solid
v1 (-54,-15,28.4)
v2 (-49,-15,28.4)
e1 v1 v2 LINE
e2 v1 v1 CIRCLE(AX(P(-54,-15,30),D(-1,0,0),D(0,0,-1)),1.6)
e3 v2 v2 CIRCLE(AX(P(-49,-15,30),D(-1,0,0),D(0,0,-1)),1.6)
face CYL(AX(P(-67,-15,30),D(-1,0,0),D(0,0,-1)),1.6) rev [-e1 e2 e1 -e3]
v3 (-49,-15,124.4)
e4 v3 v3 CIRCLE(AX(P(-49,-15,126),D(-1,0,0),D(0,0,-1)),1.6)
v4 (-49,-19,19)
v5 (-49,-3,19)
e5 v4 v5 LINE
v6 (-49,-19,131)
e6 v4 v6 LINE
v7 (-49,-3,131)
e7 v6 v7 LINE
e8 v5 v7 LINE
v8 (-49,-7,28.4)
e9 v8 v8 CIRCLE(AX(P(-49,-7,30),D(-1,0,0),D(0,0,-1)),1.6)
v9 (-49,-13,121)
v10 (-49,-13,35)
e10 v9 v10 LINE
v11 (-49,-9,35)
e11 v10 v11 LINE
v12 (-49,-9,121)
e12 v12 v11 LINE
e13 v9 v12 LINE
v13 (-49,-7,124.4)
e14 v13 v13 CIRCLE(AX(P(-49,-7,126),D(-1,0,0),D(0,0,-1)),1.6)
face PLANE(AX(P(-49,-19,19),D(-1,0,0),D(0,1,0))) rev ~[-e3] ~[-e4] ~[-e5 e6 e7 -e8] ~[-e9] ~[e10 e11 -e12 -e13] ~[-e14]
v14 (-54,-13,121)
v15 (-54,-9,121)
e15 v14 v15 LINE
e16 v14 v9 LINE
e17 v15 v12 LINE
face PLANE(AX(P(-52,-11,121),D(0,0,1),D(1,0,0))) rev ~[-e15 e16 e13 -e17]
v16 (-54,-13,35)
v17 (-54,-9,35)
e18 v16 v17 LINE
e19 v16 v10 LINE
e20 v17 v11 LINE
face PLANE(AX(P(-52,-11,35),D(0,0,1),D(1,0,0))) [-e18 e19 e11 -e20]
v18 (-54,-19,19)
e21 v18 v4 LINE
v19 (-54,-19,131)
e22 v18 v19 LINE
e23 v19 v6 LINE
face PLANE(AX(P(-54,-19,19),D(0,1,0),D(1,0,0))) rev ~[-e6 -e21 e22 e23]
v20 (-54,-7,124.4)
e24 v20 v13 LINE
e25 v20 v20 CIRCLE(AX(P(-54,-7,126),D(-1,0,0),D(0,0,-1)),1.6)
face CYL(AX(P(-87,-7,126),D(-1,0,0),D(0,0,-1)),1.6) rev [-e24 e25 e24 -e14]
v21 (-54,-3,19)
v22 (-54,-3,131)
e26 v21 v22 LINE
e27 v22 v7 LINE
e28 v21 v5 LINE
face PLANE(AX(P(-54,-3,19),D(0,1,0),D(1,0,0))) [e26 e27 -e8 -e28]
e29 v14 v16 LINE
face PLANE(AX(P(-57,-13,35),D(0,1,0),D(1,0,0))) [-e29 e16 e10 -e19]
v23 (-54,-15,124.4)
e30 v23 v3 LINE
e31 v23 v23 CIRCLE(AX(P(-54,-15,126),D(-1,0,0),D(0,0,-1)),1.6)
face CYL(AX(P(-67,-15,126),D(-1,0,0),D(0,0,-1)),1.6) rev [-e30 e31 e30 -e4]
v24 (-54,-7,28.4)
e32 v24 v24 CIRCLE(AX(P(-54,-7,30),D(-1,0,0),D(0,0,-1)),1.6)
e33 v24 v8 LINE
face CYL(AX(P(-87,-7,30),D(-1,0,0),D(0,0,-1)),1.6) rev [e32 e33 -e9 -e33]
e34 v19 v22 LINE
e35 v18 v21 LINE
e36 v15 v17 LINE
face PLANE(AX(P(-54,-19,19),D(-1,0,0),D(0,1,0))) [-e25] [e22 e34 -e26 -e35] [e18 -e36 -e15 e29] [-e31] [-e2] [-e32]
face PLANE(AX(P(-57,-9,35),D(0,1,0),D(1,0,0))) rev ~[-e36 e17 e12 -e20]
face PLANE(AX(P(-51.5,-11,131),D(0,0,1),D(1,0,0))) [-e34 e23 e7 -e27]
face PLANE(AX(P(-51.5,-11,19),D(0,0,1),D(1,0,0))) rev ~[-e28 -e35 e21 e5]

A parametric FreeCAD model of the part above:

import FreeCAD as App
import Part
import Sketcher
from FreeCAD import Vector
Q = App.Units.Quantity

doc = App.newDocument("Part")
body = doc.addObject("PartDesign::Body", "Body")

# Sketch on XY plane
sketch1 = body.newObject("Sketcher::SketchObject", "Sketch")
sketch1.AttachmentSupport = (doc.getObject("XY_Plane"), [""])
sketch1.MapMode = "FlatFace"
sketch1.addGeometry(Part.Circle(Vector(0, 0, 0), Vector(0, 0, 1), 1.6), False)
sketch1.addConstraint([
    Sketcher.Constraint("Coincident", 0, 3, -1, 1),
    Sketcher.Constraint("Diameter", 0, Q("3.2 mm")),
])
pad1 = body.newObject("PartDesign::Pad", "Pad")
pad1.Profile = sketch1
pad1.Length = 40
body2 = doc.addObject("PartDesign::Body", "Body001")
doc.recompute()

body.Placement = App.Placement(Vector(0, 0, 0), App.Rotation(Vector(0, 1, 0), 90))
boolean = body2.newObject("PartDesign::Boolean", "Boolean")
boolean.Type = "Fuse"
boolean.addObjects([body])
body3 = doc.addObject("PartDesign::Body", "Body002")
doc.recompute()

body2.Placement = App.Placement(Vector(-67, 7, 126), App.Rotation(Vector(0, 0, 1), 0))
boolean2 = body3.newObject("PartDesign::Boolean", "Boolean001")
boolean2.Type = "Fuse"
boolean2.addObjects([body2])
body4 = doc.addObject("PartDesign::Body", "Body003")

# Sketch on XY plane
sketch2 = body4.newObject("Sketcher::SketchObject", "Sketch001")
sketch2.AttachmentSupport = (doc.getObject("XY_Plane003"), [""])
sketch2.MapMode = "FlatFace"
sketch2.addGeometry(Part.Circle(Vector(0, 0, 0), Vector(0, 0, 1), 1.6), False)
sketch2.addConstraint([
    Sketcher.Constraint("Coincident", 0, 3, -1, 1),
    Sketcher.Constraint("Diameter", 0, Q("3.2 mm")),
])
pad2 = body4.newObject("PartDesign::Pad", "Pad001")
pad2.Profile = sketch2
pad2.Length = 40
body5 = doc.addObject("PartDesign::Body", "Body004")
doc.recompute()

body4.Placement = App.Placement(Vector(0, 0, 0), App.Rotation(Vector(0, 1, 0), 90))
boolean3 = body5.newObject("PartDesign::Boolean", "Boolean002")
boolean3.Type = "Fuse"
boolean3.addObjects([body4])
body6 = doc.addObject("PartDesign::Body", "Body005")
doc.recompute()

body5.Placement = App.Placement(Vector(-67, -15, 30), App.Rotation(Vector(0, 0, 1), 0))
boolean4 = body6.newObject("PartDesign::Boolean", "Boolean003")
boolean4.Type = "Fuse"
boolean4.addObjects([body5])
body7 = doc.addObject("PartDesign::Body", "Body006")

# Sketch on XY plane
sketch3 = body7.newObject("Sketcher::SketchObject", "Sketch002")
sketch3.AttachmentSupport = (doc.getObject("XY_Plane006"), [""])
sketch3.MapMode = "FlatFace"
sketch3.addGeometry(Part.Circle(Vector(0, 0, 0), Vector(0, 0, 1), 1.6), False)
sketch3.addConstraint([
    Sketcher.Constraint("Coincident", 0, 3, -1, 1),
    Sketcher.Constraint("Diameter", 0, Q("3.2 mm")),
])
pad3 = body7.newObject("PartDesign::Pad", "Pad002")
pad3.Profile = sketch3
pad3.Length = 40
body8 = doc.addObject("PartDesign::Body", "Body007")
doc.recompute()

body7.Placement = App.Placement(Vector(0, 0, 0), App.Rotation(Vector(0, 1, 0), 90))
boolean5 = body8.newObject("PartDesign::Boolean", "Boolean004")
boolean5.Type = "Fuse"
boolean5.addObjects([body7])
body9 = doc.addObject("PartDesign::Body", "Body008")
body9.AllowCompound = True
doc.recompute()

body8.Placement = App.Placement(Vector(-87, -7, 30), App.Rotation(Vector(0, 0, 1), 0))
boolean6 = body9.newObject("PartDesign::Boolean", "Boolean005")
boolean6.Type = "Fuse"
boolean6.addObjects([body8])
doc.recompute()

boolean7 = body9.newObject("PartDesign::Boolean", "Boolean006")
boolean7.Type = "Fuse"
boolean7.addObjects([body6])
body10 = doc.addObject("PartDesign::Body", "Body009")
body10.AllowCompound = True
doc.recompute()

body9.Placement = App.Placement(Vector(0, 0, 96), App.Rotation(Vector(0, 0, 1), 0))
boolean8 = body10.newObject("PartDesign::Boolean", "Boolean007")
boolean8.Type = "Fuse"
boolean8.addObjects([body9])
doc.recompute()

boolean9 = body10.newObject("PartDesign::Boolean", "Boolean008")
boolean9.Type = "Fuse"
boolean9.addObjects([body3])
body11 = doc.addObject("PartDesign::Body", "Body010")

# Sketch on XY plane
sketch4 = body11.newObject("Sketcher::SketchObject", "Sketch003")
sketch4.AttachmentSupport = (doc.getObject("XY_Plane010"), [""])
sketch4.MapMode = "FlatFace"
sketch4.addGeometry(Part.Circle(Vector(0, 0, 0), Vector(0, 0, 1), 1.6), False)
sketch4.addConstraint([
    Sketcher.Constraint("Coincident", 0, 3, -1, 1),
    Sketcher.Constraint("Diameter", 0, Q("3.2 mm")),
])
pad4 = body11.newObject("PartDesign::Pad", "Pad003")
pad4.Profile = sketch4
pad4.Length = 40
body12 = doc.addObject("PartDesign::Body", "Body011")
doc.recompute()

body11.Placement = App.Placement(Vector(0, 0, 0), App.Rotation(Vector(0, 1, 0), 90))
boolean10 = body12.newObject("PartDesign::Boolean", "Boolean009")
boolean10.Type = "Fuse"
boolean10.addObjects([body11])
body13 = doc.addObject("PartDesign::Body", "Body012")
doc.recompute()

body12.Placement = App.Placement(Vector(-67, 7, 30), App.Rotation(Vector(0, 0, 1), 0))
boolean11 = body13.newObject("PartDesign::Boolean", "Boolean010")
boolean11.Type = "Fuse"
boolean11.addObjects([body12])
body14 = doc.addObject("PartDesign::Body", "Body013")

# Sketch on XY plane
sketch5 = body14.newObject("Sketcher::SketchObject", "Sketch004")
sketch5.AttachmentSupport = (doc.getObject("XY_Plane013"), [""])
sketch5.MapMode = "FlatFace"
sketch5.addGeometry(Part.Circle(Vector(0, 0, 0), Vector(0, 0, 1), 1.6), False)
sketch5.addConstraint([
    Sketcher.Constraint("Coincident", 0, 3, -1, 1),
    Sketcher.Constraint("Diameter", 0, Q("3.2 mm")),
])
pad5 = body14.newObject("PartDesign::Pad", "Pad004")
pad5.Profile = sketch5
pad5.Length = 40
body15 = doc.addObject("PartDesign::Body", "Body014")
doc.recompute()

body14.Placement = App.Placement(Vector(0, 0, 0), App.Rotation(Vector(0, 1, 0), 90))
boolean12 = body15.newObject("PartDesign::Boolean", "Boolean011")
boolean12.Type = "Fuse"
boolean12.addObjects([body14])
body16 = doc.addObject("PartDesign::Body", "Body015")
doc.recompute()

body15.Placement = App.Placement(Vector(-67, -15, 30), App.Rotation(Vector(0, 0, 1), 0))
boolean13 = body16.newObject("PartDesign::Boolean", "Boolean012")
boolean13.Type = "Fuse"
boolean13.addObjects([body15])
body17 = doc.addObject("PartDesign::Body", "Body016")

# Sketch on XY plane
sketch6 = body17.newObject("Sketcher::SketchObject", "Sketch005")
sketch6.AttachmentSupport = (doc.getObject("XY_Plane016"), [""])
sketch6.MapMode = "FlatFace"
sketch6.addGeometry(Part.Circle(Vector(0, 0, 0), Vector(0, 0, 1), 1.6), False)
sketch6.addConstraint([
    Sketcher.Constraint("Coincident", 0, 3, -1, 1),
    Sketcher.Constraint("Diameter", 0, Q("3.2 mm")),
])
pad6 = body17.newObject("PartDesign::Pad", "Pad005")
pad6.Profile = sketch6
pad6.Length = 40
body18 = doc.addObject("PartDesign::Body", "Body017")
doc.recompute()

body17.Placement = App.Placement(Vector(0, 0, 0), App.Rotation(Vector(0, 1, 0), 90))
boolean14 = body18.newObject("PartDesign::Boolean", "Boolean013")
boolean14.Type = "Fuse"
boolean14.addObjects([body17])
body19 = doc.addObject("PartDesign::Body", "Body018")
body19.AllowCompound = True
doc.recompute()

body18.Placement = App.Placement(Vector(-87, -7, 30), App.Rotation(Vector(0, 0, 1), 0))
boolean15 = body19.newObject("PartDesign::Boolean", "Boolean014")
boolean15.Type = "Fuse"
boolean15.addObjects([body18])
doc.recompute()

boolean16 = body19.newObject("PartDesign::Boolean", "Boolean015")
boolean16.Type = "Fuse"
boolean16.addObjects([body16])
doc.recompute()

boolean17 = body19.newObject("PartDesign::Boolean", "Boolean016")
boolean17.Type = "Fuse"
boolean17.addObjects([body13])
body20 = doc.addObject("PartDesign::Body", "Body019")

# Sketch on XY plane
sketch7 = body20.newObject("Sketcher::SketchObject", "Sketch006")
sketch7.AttachmentSupport = (doc.getObject("XY_Plane019"), [""])
sketch7.MapMode = "FlatFace"
sketch7.AttachmentOffset = App.Placement(Vector(0, 0, 35), App.Rotation())
sketch7.addGeometry([
    Part.LineSegment(Vector(-46, -9, 0), Vector(-46, -13, 0)),
    Part.LineSegment(Vector(-46, -13, 0), Vector(-36, -13, 0)),
    Part.LineSegment(Vector(-36, -13, 0), Vector(-36, -9, 0)),
    Part.LineSegment(Vector(-36, -9, 0), Vector(-46, -9, 0)),
], False)
sketch7.addConstraint([
    Sketcher.Constraint("Coincident", 0, 2, 1, 1),
    Sketcher.Constraint("Coincident", 1, 2, 2, 1),
    Sketcher.Constraint("Coincident", 2, 2, 3, 1),
    Sketcher.Constraint("Coincident", 3, 2, 0, 1),
    Sketcher.Constraint("Vertical", 0),
    Sketcher.Constraint("Horizontal", 1),
    Sketcher.Constraint("Vertical", 2),
    Sketcher.Constraint("Horizontal", 3),
    Sketcher.Constraint("DistanceX", 1, 1, 1, 2, Q("10 mm")),
    Sketcher.Constraint("DistanceY", 0, 2, 0, 1, Q("4 mm")),
    Sketcher.Constraint("DistanceX", 0, 2, -1, 1, Q("46 mm")),
    Sketcher.Constraint("DistanceY", 0, 2, -1, 1, Q("13 mm")),
])
pad7 = body20.newObject("PartDesign::Pad", "Pad006")
pad7.Profile = sketch7
pad7.Length = 86
body21 = doc.addObject("PartDesign::Body", "Body020")

# Sketch on XY plane
sketch8 = body21.newObject("Sketcher::SketchObject", "Sketch007")
sketch8.AttachmentSupport = (doc.getObject("XY_Plane020"), [""])
sketch8.MapMode = "FlatFace"
sketch8.AttachmentOffset = App.Placement(Vector(0, 0, 19), App.Rotation())
sketch8.addGeometry([
    Part.LineSegment(Vector(-43, -3, 0), Vector(-43, -19, 0)),
    Part.LineSegment(Vector(-43, -19, 0), Vector(-38, -19, 0)),
    Part.LineSegment(Vector(-38, -19, 0), Vector(-38, -3, 0)),
    Part.LineSegment(Vector(-38, -3, 0), Vector(-43, -3, 0)),
], False)
sketch8.addConstraint([
    Sketcher.Constraint("Coincident", 0, 2, 1, 1),
    Sketcher.Constraint("Coincident", 1, 2, 2, 1),
    Sketcher.Constraint("Coincident", 2, 2, 3, 1),
    Sketcher.Constraint("Coincident", 3, 2, 0, 1),
    Sketcher.Constraint("Vertical", 0),
    Sketcher.Constraint("Horizontal", 1),
    Sketcher.Constraint("Vertical", 2),
    Sketcher.Constraint("Horizontal", 3),
    Sketcher.Constraint("DistanceX", 1, 1, 1, 2, Q("5 mm")),
    Sketcher.Constraint("DistanceY", 0, 2, 0, 1, Q("16 mm")),
    Sketcher.Constraint("DistanceX", 0, 2, -1, 1, Q("43 mm")),
    Sketcher.Constraint("DistanceY", 0, 2, -1, 1, Q("19 mm")),
])
pad8 = body21.newObject("PartDesign::Pad", "Pad007")
pad8.Profile = sketch8
pad8.Length = 112
doc.recompute()

boolean18 = body21.newObject("PartDesign::Boolean", "Boolean017")
boolean18.Type = "Cut"
boolean18.addObjects([body20])
body22 = doc.addObject("PartDesign::Body", "Body021")
doc.recompute()

body21.Placement = App.Placement(Vector(-11, 0, 0), App.Rotation(Vector(0, 0, 1), 0))
boolean19 = body22.newObject("PartDesign::Boolean", "Boolean018")
boolean19.Type = "Fuse"
boolean19.addObjects([body21])
doc.recompute()

boolean20 = body22.newObject("PartDesign::Boolean", "Boolean019")
boolean20.Type = "Cut"
boolean20.addObjects([body19])
doc.recompute()

boolean21 = body22.newObject("PartDesign::Boolean", "Boolean020")
boolean21.Type = "Cut"
boolean21.addObjects([body10])

doc.recompute()
